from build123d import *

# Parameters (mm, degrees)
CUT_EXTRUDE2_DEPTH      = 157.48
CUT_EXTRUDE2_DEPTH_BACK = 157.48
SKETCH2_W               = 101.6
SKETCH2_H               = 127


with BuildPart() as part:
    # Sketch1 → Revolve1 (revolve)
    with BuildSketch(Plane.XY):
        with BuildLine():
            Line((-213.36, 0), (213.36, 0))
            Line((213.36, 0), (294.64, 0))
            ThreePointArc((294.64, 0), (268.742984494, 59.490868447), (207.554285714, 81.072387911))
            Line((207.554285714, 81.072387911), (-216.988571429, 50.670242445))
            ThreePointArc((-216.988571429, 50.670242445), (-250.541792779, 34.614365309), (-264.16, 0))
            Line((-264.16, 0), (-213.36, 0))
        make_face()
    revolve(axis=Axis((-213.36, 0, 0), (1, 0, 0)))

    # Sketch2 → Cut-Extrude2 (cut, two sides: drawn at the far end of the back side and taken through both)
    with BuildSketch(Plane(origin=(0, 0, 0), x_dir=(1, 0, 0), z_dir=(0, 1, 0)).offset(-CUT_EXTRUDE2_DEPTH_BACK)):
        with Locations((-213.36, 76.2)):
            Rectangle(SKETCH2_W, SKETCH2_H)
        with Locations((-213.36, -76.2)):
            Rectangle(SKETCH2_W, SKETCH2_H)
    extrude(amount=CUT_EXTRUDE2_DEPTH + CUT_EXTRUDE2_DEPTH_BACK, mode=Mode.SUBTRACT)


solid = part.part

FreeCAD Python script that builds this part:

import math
import FreeCAD as App
import Part
import Sketcher
Q = App.Units.Quantity


def add_polygon(sketch, points):
    """Adds a closed chain of lines whose ends are joined by coincident constraints."""
    first, n = sketch.GeometryCount, len(points)
    for a, b in zip(points, points[1:] + points[:1]):
        sketch.addGeometry(Part.LineSegment(App.Vector(*a, 0), App.Vector(*b, 0)), False)
    for i in range(n):
        sketch.addConstraint(Sketcher.Constraint("Coincident", first + i, 2, first + (i + 1) % n, 1))

doc = App.newDocument("Part")
body = doc.addObject("PartDesign::Body", "Body")

# Sketch on XY plane
sketch1 = doc.addObject("Sketcher::SketchObject", "Sketch")
body.addObject(sketch1)
sketch1.AttachmentSupport = (doc.XY_Plane, [""])
sketch1.MapMode = "FlatFace"
sketch1.addGeometry([
    Part.ArcOfCircle(Part.Circle(App.Vector(213.36, 0, 0), App.Vector(0, 0, 1), 81.28), math.radians(0), math.radians(94.096044)),
    Part.LineSegment(App.Vector(207.554286, 81.072388, 0), App.Vector(-216.988571, 50.670242, 0)),
    Part.ArcOfCircle(Part.Circle(App.Vector(-213.36, 0, 0), App.Vector(0, 0, 1), 50.8), math.radians(94.096044), math.radians(180)),
    Part.LineSegment(App.Vector(-264.16, 0, 0), App.Vector(294.64, 0, 0)),
], False)
sketch1.addConstraint([
    Sketcher.Constraint("Tangent", 0, 2, 1, 1),
    Sketcher.Constraint("Tangent", 1, 2, 2, 1),
    Sketcher.Constraint("Coincident", 2, 2, 3, 1),
    Sketcher.Constraint("Coincident", 3, 2, 0, 1),
    Sketcher.Constraint("Horizontal", 3),
    Sketcher.Constraint("Symmetric", 0, 3, 2, 3, -1, 1),
    Sketcher.Constraint("PointOnObject", 0, 3, -1),
    Sketcher.Constraint("PointOnObject", 2, 2, -1),
    Sketcher.Constraint("Radius", 2, Q("2 in")),
    Sketcher.Constraint("Radius", 0, Q("3.2 in")),
    Sketcher.Constraint("DistanceX", 3, 1, 3, 2, Q("22 in")),
])
revolution = doc.addObject("PartDesign::Revolution", "Revolution")
body.addObject(revolution)
revolution.Profile = sketch1
revolution.ReferenceAxis = (sketch1, ["H_Axis"])
revolution.Angle = 360

# Sketch on XZ plane
sketch2 = doc.addObject("Sketcher::SketchObject", "Sketch001")
body.addObject(sketch2)
sketch2.AttachmentSupport = (doc.XZ_Plane, [""])
sketch2.MapMode = "FlatFace"
add_polygon(sketch2, [(-264.16, -139.7), (-264.16, -12.7), (-162.56, -12.7), (-162.56, -139.7)])  # lines 0-3
add_polygon(sketch2, [(-264.16, 12.7), (-264.16, 139.7), (-162.56, 139.7), (-162.56, 12.7)])  # lines 4-7
sketch2.addConstraint([
    Sketcher.Constraint("Vertical", 0),
    Sketcher.Constraint("Horizontal", 1),
    Sketcher.Constraint("Vertical", 2),
    Sketcher.Constraint("Horizontal", 3),
    Sketcher.Constraint("Vertical", 4),
    Sketcher.Constraint("Horizontal", 5),
    Sketcher.Constraint("Vertical", 6),
    Sketcher.Constraint("Horizontal", 7),
    Sketcher.Constraint("Symmetric", 3, 2, 4, 2, -1),
    Sketcher.Constraint("Symmetric", 1, 2, 6, 2, -1),
    Sketcher.Constraint("DistanceX", 1, 1, 1, 2, Q("4 in")),
    Sketcher.Constraint("DistanceY", 0, 1, 0, 2, Q("5 in")),
    Sketcher.Constraint("DistanceY", 0, 2, 4, 2, Q("6 in")),
    Sketcher.Constraint("DistanceX", 0, 2, -1, 1, Q("10.4 in")),
])
pocket1 = doc.addObject("PartDesign::Pocket", "Pocket")
body.addObject(pocket1)
pocket1.Profile = sketch2
pocket1.Type = "ThroughAll"
pocket1.Midplane = True

doc.recompute()
